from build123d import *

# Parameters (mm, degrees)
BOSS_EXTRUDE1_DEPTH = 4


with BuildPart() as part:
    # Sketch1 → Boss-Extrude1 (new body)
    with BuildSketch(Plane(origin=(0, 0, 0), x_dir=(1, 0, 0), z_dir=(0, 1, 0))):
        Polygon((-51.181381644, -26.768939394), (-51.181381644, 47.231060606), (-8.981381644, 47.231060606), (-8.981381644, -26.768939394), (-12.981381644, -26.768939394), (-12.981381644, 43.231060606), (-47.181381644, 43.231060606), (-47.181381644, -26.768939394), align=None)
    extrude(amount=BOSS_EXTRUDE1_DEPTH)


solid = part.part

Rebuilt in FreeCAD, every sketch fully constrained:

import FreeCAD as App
import Part
import Sketcher

V = App.Vector

doc = App.newDocument("Part")
body = doc.addObject("PartDesign::Body", "Body")

# Sketch on XZ plane
sketch1 = body.newObject("Sketcher::SketchObject", "Sketch")
sketch1.AttachmentSupport = (doc.getObject("XZ_Plane"), [""])
sketch1.MapMode = "FlatFace"
sketch1.addGeometry(Part.LineSegment(V(-51.2, -47.2, 0), V(-51.2, 26.8, 0)), False)
sketch1.addGeometry(Part.LineSegment(V(-51.2, 26.8, 0), V(-47.2, 26.8, 0)), False)
sketch1.addGeometry(Part.LineSegment(V(-47.2, 26.8, 0), V(-47.2, -43.2, 0)), False)
sketch1.addGeometry(Part.LineSegment(V(-47.2, -43.2, 0), V(-13, -43.2, 0)), False)
sketch1.addGeometry(Part.LineSegment(V(-13, -43.2, 0), V(-13, 26.8, 0)), False)
sketch1.addGeometry(Part.LineSegment(V(-13, 26.8, 0), V(-9, 26.8, 0)), False)
sketch1.addGeometry(Part.LineSegment(V(-9, 26.8, 0), V(-9, -47.2, 0)), False)
sketch1.addGeometry(Part.LineSegment(V(-9, -47.2, 0), V(-51.2, -47.2, 0)), False)
sketch1.addConstraint(Sketcher.Constraint("Coincident", 0, 2, 1, 1))
sketch1.addConstraint(Sketcher.Constraint("Coincident", 1, 2, 2, 1))
sketch1.addConstraint(Sketcher.Constraint("Coincident", 2, 2, 3, 1))
sketch1.addConstraint(Sketcher.Constraint("Coincident", 3, 2, 4, 1))
sketch1.addConstraint(Sketcher.Constraint("Coincident", 4, 2, 5, 1))
sketch1.addConstraint(Sketcher.Constraint("Coincident", 5, 2, 6, 1))
sketch1.addConstraint(Sketcher.Constraint("Coincident", 6, 2, 7, 1))
sketch1.addConstraint(Sketcher.Constraint("Coincident", 7, 2, 0, 1))
sketch1.addConstraint(Sketcher.Constraint("Vertical", 0))
sketch1.addConstraint(Sketcher.Constraint("Horizontal", 1))
sketch1.addConstraint(Sketcher.Constraint("Vertical", 2))
sketch1.addConstraint(Sketcher.Constraint("Horizontal", 3))
sketch1.addConstraint(Sketcher.Constraint("Vertical", 4))
sketch1.addConstraint(Sketcher.Constraint("Horizontal", 5))
sketch1.addConstraint(Sketcher.Constraint("Vertical", 6))
sketch1.addConstraint(Sketcher.Constraint("Horizontal", 7))
sketch1.addConstraint(Sketcher.Constraint("Horizontal", 1, 2, 4, 2))
sketch1.addConstraint(Sketcher.Constraint("Equal", 1, 5))
sketch1.addConstraint(Sketcher.Constraint("DistanceX", 1, 1, 1, 2, 4.0))
sketch1.addConstraint(Sketcher.Constraint("DistanceY", 0, 1, 0, 2, 74.0))
sketch1.addConstraint(Sketcher.Constraint("DistanceY", 2, 2, 2, 1, 70.0))
sketch1.addConstraint(Sketcher.Constraint("DistanceX", 3, 1, 3, 2, 34.2))
sketch1.addConstraint(Sketcher.Constraint("DistanceX", 0, 2, -1, 1, 51.181382))
sketch1.addConstraint(Sketcher.Constraint("DistanceY", -1, 1, 0, 2, 26.768939))
pad1 = body.newObject("PartDesign::Pad", "Pad")
pad1.Profile = sketch1
pad1.Length = 4
pad1.Reversed = True

doc.recompute()
